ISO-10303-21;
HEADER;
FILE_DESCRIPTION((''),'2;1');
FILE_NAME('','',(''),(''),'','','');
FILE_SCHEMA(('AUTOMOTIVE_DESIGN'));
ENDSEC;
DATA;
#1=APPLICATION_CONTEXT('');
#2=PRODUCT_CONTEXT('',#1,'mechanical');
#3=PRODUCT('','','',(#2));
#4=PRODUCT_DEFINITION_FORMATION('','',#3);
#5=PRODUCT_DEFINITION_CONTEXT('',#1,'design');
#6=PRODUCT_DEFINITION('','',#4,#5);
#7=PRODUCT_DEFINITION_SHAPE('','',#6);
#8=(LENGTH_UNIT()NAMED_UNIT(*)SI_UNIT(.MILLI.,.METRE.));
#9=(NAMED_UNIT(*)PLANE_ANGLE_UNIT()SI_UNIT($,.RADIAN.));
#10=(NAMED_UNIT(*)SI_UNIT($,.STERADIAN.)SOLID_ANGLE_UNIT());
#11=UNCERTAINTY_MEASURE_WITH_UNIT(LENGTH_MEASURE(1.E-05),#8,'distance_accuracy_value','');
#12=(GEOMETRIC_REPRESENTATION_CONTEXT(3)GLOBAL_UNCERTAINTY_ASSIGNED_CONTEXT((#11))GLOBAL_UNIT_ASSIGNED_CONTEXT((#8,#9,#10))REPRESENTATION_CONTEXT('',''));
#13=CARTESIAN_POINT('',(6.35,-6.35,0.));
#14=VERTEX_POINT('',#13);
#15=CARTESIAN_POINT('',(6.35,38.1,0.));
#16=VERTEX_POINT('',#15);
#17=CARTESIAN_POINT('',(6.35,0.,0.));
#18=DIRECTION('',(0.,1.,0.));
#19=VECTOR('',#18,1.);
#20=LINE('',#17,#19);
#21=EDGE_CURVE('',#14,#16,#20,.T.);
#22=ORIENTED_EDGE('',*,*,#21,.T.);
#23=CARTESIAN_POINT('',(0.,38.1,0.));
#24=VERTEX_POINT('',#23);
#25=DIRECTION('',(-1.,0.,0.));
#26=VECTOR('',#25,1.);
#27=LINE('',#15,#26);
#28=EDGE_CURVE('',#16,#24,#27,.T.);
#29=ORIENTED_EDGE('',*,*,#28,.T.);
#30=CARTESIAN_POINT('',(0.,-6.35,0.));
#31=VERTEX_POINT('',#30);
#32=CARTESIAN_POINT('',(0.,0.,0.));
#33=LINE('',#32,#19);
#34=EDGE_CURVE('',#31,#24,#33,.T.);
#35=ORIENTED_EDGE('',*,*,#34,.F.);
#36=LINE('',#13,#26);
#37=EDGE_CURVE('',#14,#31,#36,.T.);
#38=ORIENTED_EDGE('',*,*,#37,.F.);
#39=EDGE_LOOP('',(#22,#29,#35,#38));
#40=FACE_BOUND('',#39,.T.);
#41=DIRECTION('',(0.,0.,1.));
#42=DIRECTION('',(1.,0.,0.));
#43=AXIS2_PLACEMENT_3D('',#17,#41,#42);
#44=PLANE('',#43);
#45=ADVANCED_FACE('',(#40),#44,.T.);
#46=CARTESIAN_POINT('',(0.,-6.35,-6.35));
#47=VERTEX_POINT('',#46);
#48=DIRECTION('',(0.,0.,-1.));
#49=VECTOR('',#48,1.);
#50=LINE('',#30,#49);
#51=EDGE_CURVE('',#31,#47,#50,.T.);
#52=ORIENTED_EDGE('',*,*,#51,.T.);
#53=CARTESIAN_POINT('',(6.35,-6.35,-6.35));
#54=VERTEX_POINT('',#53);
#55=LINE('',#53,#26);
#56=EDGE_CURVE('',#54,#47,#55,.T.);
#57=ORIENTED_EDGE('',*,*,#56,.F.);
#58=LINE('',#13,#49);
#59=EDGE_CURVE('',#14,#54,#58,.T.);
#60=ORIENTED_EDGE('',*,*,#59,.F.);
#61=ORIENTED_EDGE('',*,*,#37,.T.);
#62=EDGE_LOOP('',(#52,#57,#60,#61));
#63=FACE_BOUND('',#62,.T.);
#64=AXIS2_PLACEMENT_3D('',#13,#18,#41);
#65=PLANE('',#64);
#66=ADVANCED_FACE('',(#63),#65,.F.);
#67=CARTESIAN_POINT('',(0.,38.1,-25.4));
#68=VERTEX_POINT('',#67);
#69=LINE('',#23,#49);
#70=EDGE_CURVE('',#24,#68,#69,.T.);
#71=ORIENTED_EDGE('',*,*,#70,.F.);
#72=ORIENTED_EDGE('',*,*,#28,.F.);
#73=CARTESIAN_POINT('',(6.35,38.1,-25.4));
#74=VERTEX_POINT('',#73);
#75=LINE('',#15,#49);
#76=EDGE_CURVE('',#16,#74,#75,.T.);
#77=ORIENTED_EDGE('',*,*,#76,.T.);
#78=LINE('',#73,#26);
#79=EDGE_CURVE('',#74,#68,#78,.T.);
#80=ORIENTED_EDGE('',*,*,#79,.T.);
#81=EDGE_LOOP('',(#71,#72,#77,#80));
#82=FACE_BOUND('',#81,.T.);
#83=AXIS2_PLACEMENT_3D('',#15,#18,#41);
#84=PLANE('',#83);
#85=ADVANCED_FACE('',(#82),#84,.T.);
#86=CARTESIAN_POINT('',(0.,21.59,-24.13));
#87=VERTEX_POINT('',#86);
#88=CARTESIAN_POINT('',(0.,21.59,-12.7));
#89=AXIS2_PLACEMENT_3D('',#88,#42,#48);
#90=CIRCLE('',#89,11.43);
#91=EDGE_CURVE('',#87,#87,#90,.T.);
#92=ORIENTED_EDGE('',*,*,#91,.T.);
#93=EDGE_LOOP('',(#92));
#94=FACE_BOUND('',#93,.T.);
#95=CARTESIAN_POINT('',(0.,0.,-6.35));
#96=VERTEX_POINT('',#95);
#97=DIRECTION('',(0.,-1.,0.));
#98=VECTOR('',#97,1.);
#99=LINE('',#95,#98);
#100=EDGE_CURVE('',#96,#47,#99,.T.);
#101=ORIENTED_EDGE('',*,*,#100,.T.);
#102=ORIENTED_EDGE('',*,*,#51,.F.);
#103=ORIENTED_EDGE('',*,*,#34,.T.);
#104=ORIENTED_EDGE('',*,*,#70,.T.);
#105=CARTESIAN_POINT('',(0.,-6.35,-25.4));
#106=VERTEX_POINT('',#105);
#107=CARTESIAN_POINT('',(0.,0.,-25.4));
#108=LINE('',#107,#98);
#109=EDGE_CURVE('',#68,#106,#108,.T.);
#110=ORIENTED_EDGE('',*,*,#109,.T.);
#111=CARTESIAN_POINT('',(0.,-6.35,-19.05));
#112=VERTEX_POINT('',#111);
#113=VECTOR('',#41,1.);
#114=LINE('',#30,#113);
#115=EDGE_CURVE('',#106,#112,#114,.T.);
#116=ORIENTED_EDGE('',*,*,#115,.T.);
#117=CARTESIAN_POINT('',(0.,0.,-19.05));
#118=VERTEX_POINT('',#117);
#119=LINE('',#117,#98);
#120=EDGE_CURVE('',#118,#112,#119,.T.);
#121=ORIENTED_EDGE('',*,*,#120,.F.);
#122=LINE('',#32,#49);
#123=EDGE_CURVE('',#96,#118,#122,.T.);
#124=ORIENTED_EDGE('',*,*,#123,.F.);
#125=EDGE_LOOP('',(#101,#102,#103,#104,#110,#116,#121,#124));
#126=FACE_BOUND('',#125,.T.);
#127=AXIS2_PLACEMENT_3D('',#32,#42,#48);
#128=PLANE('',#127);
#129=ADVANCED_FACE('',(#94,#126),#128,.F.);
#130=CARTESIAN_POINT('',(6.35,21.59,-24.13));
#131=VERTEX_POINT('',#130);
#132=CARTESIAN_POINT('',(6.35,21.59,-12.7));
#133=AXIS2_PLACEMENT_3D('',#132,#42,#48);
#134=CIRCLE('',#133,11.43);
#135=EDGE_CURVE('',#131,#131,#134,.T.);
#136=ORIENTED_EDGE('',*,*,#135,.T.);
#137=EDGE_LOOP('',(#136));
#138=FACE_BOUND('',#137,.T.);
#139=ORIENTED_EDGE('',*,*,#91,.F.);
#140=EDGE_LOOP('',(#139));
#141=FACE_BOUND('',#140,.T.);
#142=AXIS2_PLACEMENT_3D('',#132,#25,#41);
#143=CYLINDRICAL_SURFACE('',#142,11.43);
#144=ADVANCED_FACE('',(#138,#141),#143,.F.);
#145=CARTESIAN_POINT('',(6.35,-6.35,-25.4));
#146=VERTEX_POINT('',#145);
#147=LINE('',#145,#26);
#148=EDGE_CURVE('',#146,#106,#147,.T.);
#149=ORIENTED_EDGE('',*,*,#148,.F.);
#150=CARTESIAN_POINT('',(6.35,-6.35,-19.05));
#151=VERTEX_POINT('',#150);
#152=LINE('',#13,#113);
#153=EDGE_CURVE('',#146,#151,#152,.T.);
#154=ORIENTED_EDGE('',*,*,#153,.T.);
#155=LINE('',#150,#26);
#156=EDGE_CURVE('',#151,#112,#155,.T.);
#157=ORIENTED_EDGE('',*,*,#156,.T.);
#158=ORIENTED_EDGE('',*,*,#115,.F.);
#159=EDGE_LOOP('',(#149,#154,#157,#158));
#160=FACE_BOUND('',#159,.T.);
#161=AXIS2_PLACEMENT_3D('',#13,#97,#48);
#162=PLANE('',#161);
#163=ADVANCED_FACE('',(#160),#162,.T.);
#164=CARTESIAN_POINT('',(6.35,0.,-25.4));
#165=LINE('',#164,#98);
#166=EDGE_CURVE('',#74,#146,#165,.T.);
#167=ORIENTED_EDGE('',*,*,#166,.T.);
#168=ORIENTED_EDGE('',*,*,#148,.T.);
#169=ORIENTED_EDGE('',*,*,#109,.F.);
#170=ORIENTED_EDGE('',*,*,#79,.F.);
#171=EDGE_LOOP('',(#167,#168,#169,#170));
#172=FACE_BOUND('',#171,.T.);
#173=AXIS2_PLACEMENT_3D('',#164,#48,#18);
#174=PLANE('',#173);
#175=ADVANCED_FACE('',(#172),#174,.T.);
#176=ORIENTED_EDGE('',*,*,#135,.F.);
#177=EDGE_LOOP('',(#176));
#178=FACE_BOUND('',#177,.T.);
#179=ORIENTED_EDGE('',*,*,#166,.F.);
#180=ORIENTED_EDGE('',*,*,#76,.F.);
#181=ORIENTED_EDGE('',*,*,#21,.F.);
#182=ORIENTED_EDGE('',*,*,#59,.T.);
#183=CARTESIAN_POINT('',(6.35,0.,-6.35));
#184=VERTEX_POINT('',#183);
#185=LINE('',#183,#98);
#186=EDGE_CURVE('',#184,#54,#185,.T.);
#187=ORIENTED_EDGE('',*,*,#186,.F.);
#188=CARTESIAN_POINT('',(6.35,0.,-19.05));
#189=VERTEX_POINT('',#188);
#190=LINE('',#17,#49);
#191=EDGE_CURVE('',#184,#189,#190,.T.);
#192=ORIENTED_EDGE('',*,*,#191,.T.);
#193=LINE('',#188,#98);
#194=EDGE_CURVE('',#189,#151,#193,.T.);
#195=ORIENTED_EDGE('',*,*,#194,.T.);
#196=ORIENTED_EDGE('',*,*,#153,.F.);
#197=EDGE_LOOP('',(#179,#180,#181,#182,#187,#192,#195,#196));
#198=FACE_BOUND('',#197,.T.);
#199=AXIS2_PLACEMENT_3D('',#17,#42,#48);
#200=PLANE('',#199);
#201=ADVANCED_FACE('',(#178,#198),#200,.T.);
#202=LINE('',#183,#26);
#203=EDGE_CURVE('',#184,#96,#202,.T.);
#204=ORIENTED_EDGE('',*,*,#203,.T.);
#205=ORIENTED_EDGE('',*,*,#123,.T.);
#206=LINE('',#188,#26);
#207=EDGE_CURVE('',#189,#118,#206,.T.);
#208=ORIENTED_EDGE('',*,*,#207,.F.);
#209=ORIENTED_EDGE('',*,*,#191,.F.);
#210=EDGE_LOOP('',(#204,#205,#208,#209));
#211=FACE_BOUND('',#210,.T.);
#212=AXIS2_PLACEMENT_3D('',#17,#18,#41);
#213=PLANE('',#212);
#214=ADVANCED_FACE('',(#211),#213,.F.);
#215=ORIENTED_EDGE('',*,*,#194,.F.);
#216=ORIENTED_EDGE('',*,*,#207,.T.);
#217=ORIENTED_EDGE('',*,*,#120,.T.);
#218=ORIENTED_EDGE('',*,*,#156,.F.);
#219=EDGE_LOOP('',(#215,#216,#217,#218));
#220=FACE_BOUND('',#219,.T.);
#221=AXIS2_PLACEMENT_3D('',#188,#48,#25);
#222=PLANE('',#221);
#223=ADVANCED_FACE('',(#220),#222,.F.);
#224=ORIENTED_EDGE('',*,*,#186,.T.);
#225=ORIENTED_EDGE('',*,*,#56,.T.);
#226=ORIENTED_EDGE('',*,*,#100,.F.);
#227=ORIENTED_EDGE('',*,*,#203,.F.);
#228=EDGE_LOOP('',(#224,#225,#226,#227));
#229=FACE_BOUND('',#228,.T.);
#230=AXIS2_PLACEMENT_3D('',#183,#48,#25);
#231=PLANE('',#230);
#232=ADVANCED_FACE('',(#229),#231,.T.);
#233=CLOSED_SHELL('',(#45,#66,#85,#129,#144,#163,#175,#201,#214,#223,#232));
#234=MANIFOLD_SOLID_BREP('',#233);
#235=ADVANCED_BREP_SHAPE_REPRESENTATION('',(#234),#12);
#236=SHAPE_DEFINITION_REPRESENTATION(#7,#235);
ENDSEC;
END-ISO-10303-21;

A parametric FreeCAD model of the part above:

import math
import FreeCAD as App
import Part
import Sketcher

V = App.Vector
Q = App.Units.Quantity


def add_polygon(sketch, points):
    """Adds a closed chain of lines whose ends are joined by coincident constraints."""
    first, n = sketch.GeometryCount, len(points)
    for a, b in zip(points, points[1:] + points[:1]):
        sketch.addGeometry(Part.LineSegment(App.Vector(*a, 0), App.Vector(*b, 0)), False)
    for i in range(n):
        sketch.addConstraint(Sketcher.Constraint("Coincident", first + i, 2, first + (i + 1) % n, 1))

doc = App.newDocument("Part")
body = doc.addObject("PartDesign::Body", "Body")

# Sketch on YZ plane
sketch1 = body.newObject("Sketcher::SketchObject", "Sketch")
sketch1.AttachmentSupport = (doc.getObject("YZ_Plane"), [""])
sketch1.MapMode = "FlatFace"
add_polygon(sketch1, [(0, -19), (-6, -19), (-6, -25), (38, -25), (38, 0), (-6, 0), (-6, -6), (0, -6)])  # lines 0-7
sketch1.addGeometry(Part.ArcOfCircle(Part.Circle(V(22, -13, 0), V(0, 0, 1), 11), math.radians(-90), math.radians(0)), False)  # 8
sketch1.addGeometry(Part.ArcOfCircle(Part.Circle(V(22, -13, 0), V(0, 0, 1), 11), math.radians(180), math.radians(270)), False)  # 9
sketch1.addGeometry(Part.ArcOfCircle(Part.Circle(V(22, -13, 0), V(0, 0, 1), 11), math.radians(0), math.radians(180)), False)  # 10
sketch1.addConstraint(Sketcher.Constraint("Tangent", 8, 1, 9, 2))
sketch1.addConstraint(Sketcher.Constraint("Tangent", 9, 1, 10, 2))
sketch1.addConstraint(Sketcher.Constraint("Tangent", 10, 1, 8, 2))
sketch1.addConstraint(Sketcher.Constraint("Horizontal", 0))
sketch1.addConstraint(Sketcher.Constraint("Vertical", 1))
sketch1.addConstraint(Sketcher.Constraint("Horizontal", 2))
sketch1.addConstraint(Sketcher.Constraint("Vertical", 3))
sketch1.addConstraint(Sketcher.Constraint("Horizontal", 4))
sketch1.addConstraint(Sketcher.Constraint("Vertical", 5))
sketch1.addConstraint(Sketcher.Constraint("Horizontal", 6))
sketch1.addConstraint(Sketcher.Constraint("Vertical", 7))
sketch1.addConstraint(Sketcher.Constraint("PointOnObject", 3, 2, -1))
sketch1.addConstraint(Sketcher.Constraint("PointOnObject", 6, 2, -2))
sketch1.addConstraint(Sketcher.Constraint("Horizontal", 10, 3, 9, 1))
sketch1.addConstraint(Sketcher.Constraint("Horizontal", 9, 1, 10, 1))
sketch1.addConstraint(Sketcher.Constraint("Vertical", 1, 2, 4, 2))
sketch1.addConstraint(Sketcher.Constraint("Vertical", 10, 3, 8, 1))
sketch1.addConstraint(Sketcher.Constraint("Equal", 6, 1))
sketch1.addConstraint(Sketcher.Constraint("Equal", 1, 5))
sketch1.addConstraint(Sketcher.Constraint("DistanceY", 3, 1, 3, 2, Q("1 in")))
sketch1.addConstraint(Sketcher.Constraint("Radius", 8, Q("0.45 in")))
sketch1.addConstraint(Sketcher.Constraint("DistanceY", 7, 2, 7, 1, Q("0.5 in")))
sketch1.addConstraint(Sketcher.Constraint("DistanceX", 2, 1, 2, 2, Q("1.75 in")))
sketch1.addConstraint(Sketcher.Constraint("DistanceY", 8, 3, -1, 1, Q("0.5 in")))
sketch1.addConstraint(Sketcher.Constraint("DistanceX", -1, 1, 9, 1, Q("0.4 in")))
pad1 = body.newObject("PartDesign::Pad", "Pad")
pad1.Profile = sketch1
pad1.Length = Q("0.25 in")

doc.recompute()
